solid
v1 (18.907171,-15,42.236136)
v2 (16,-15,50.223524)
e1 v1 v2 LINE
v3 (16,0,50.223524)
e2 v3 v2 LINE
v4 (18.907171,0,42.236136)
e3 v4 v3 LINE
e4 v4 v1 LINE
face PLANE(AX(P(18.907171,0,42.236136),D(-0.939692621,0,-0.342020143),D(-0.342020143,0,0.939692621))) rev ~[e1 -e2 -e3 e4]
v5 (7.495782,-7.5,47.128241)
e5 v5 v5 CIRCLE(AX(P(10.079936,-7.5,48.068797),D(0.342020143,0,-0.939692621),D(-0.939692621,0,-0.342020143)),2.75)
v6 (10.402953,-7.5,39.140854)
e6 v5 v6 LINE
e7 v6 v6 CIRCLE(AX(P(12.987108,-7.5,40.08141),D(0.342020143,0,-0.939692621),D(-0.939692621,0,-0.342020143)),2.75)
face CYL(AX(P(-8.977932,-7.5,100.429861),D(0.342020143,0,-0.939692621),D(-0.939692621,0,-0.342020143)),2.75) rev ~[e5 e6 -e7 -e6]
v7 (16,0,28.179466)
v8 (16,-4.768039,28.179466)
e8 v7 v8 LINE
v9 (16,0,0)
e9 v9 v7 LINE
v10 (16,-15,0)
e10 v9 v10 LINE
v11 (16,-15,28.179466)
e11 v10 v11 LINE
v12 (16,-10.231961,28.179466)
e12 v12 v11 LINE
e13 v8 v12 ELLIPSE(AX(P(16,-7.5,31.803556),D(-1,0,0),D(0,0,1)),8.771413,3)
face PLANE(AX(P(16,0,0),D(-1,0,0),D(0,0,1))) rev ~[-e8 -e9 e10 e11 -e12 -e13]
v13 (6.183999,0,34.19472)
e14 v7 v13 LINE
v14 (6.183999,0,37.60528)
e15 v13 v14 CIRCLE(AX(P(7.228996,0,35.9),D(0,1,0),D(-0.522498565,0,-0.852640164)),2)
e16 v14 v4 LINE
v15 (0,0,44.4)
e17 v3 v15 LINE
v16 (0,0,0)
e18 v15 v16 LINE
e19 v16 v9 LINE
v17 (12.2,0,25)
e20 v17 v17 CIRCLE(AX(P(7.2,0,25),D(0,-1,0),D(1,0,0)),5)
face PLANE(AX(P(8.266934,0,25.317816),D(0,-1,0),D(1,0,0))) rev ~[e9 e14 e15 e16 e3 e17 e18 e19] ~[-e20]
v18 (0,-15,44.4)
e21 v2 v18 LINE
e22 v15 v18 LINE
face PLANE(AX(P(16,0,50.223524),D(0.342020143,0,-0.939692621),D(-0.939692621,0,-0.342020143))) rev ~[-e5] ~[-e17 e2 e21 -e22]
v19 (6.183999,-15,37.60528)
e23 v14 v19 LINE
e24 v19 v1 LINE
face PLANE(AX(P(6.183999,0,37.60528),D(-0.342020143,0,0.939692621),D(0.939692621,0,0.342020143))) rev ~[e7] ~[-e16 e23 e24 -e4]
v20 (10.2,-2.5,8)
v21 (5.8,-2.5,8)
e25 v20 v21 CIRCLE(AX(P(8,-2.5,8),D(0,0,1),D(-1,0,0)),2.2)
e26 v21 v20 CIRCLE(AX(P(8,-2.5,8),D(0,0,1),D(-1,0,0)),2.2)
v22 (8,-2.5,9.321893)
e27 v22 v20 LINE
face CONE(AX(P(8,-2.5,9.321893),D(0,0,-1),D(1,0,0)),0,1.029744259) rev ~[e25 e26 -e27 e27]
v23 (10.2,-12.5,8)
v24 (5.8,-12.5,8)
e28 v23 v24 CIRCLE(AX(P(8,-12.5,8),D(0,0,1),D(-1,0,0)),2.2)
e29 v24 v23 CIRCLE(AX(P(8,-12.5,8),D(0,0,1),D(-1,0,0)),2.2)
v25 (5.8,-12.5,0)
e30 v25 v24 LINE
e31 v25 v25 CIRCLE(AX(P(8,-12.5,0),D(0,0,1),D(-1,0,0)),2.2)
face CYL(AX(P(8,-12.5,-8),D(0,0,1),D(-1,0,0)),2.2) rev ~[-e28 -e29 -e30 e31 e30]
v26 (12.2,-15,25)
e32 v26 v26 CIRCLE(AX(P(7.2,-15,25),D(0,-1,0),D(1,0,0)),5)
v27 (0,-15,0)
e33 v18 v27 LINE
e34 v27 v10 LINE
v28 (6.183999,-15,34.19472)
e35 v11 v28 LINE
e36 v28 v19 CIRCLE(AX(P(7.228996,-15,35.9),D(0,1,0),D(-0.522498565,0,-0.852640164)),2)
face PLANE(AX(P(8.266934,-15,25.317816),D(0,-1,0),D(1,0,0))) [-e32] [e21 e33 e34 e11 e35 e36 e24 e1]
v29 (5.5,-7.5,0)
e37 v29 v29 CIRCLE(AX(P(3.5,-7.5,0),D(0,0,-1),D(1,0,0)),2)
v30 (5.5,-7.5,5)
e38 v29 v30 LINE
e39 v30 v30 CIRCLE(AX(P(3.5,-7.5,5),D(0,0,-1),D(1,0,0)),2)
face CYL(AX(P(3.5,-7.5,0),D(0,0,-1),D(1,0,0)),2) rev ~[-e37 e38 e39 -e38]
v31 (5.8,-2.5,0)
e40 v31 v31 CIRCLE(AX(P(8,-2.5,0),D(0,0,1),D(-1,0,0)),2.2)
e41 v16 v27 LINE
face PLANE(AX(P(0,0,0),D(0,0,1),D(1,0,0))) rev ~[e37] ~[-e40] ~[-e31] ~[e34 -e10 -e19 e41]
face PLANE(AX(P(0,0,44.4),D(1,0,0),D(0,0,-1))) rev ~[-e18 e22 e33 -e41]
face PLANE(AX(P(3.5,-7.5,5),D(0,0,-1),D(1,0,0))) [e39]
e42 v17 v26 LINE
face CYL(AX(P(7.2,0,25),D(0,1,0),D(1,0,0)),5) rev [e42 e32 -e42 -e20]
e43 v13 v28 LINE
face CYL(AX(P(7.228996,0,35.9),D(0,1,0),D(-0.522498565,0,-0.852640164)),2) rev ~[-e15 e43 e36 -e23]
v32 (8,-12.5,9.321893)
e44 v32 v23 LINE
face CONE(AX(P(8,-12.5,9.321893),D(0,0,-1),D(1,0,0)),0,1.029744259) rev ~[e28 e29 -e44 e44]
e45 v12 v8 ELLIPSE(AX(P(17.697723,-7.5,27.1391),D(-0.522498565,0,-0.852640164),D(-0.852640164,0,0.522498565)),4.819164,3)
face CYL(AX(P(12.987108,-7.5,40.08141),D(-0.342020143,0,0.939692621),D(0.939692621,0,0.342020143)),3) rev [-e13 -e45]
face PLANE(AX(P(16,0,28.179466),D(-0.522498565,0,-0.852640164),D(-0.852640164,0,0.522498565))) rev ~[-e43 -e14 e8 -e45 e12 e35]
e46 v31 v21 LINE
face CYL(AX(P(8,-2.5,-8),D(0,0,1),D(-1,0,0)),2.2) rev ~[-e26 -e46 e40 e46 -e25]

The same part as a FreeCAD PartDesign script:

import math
import FreeCAD as App
import Part
import Sketcher
from FreeCAD import Vector
Q = App.Units.Quantity

doc = App.newDocument("Part")
body = doc.addObject("PartDesign::Body", "Body")

sketch1 = body.newObject("Sketcher::SketchObject", "Sketch")
sketch1.AttachmentSupport = (doc.getObject("XZ_Plane"), [""])
sketch1.MapMode = "FlatFace"
sketch1.addGeometry([
    Part.LineSegment(Vector(0, 44.4, 0), Vector(0, 0, 0)),
    Part.LineSegment(Vector(0, 0, 0), Vector(16, 0, 0)),
    Part.LineSegment(Vector(16, 0, 0), Vector(16, 28.2, 0)),
    Part.LineSegment(Vector(16, 28.2, 0), Vector(6.2, 34.2, 0)),
    Part.ArcOfCircle(Part.Circle(Vector(7.2, 35.9, 0), Vector(0, 0, 1), 2), math.radians(121), math.radians(239)),
    Part.LineSegment(Vector(6.2, 37.6, 0), Vector(18.9, 42.2, 0)),
    Part.LineSegment(Vector(18.9, 42.2, 0), Vector(16, 50.2, 0)),
    Part.LineSegment(Vector(16, 50.2, 0), Vector(0, 44.4, 0)),
    Part.Circle(Vector(7.2, 25, 0), Vector(0, 0, 1), 5),
], False)
sketch1.addConstraint([
    Sketcher.Constraint("Coincident", 0, 2, 1, 1),
    Sketcher.Constraint("Coincident", 1, 2, 2, 1),
    Sketcher.Constraint("Coincident", 2, 2, 3, 1),
    Sketcher.Constraint("Tangent", 3, 2, 4, 2),
    Sketcher.Constraint("Coincident", 4, 1, 5, 1),
    Sketcher.Constraint("Coincident", 5, 2, 6, 1),
    Sketcher.Constraint("Coincident", 6, 2, 7, 1),
    Sketcher.Constraint("Coincident", 7, 2, 0, 1),
    Sketcher.Constraint("Vertical", 0),
    Sketcher.Constraint("Horizontal", 1),
    Sketcher.Constraint("Vertical", 2),
    Sketcher.Constraint("Coincident", 0, 2, -1, 1),
    Sketcher.Constraint("Perpendicular", 5, 6),
    Sketcher.Constraint("Perpendicular", 6, 7),
    Sketcher.Constraint("Vertical", 3, 2, 4, 1),
    Sketcher.Constraint("Vertical", 2, 2, 6, 2),
    Sketcher.Constraint("Diameter", 8, 10.0),
    Sketcher.Constraint("Radius", 4, 2.0),
    Sketcher.Constraint("DistanceX", 1, 1, 1, 2, 16.0),
    Sketcher.Constraint("Angle", 5, Q("20 deg")),
    Sketcher.Constraint("DistanceY", 0, 2, 0, 1, 44.4),
    Sketcher.Constraint("DistanceY", -1, 1, 8, 3, 25.0),
    Sketcher.Constraint("Angle", 3, Q("148.5 deg")),
    Sketcher.Constraint("Distance", 6, 8.5),
    Sketcher.Constraint("DistanceY", -1, 1, 4, 3, 35.9),
    Sketcher.Constraint("DistanceX", -1, 1, 8, 3, 7.2),
])
pad1 = body.newObject("PartDesign::Pad", "Pad")
pad1.Profile = sketch1
pad1.Length = 15

sketch2 = body.newObject("Sketcher::SketchObject", "Sketch001")
sketch2.Placement = App.Placement(Vector(-14.269885, 0, 39.206187), App.Rotation(Vector(0.939692621, 0, 0.342020143), Vector(0, 1, 0), Vector(-0.342020143, 0, 0.939692621), "ZXY"))
sketch2.addGeometry(Part.Circle(Vector(25.9, -7.5, 0), Vector(0, 0, 1), 2.8), False)
sketch2.addConstraint([
    Sketcher.Constraint("Diameter", 0, 5.5),
    Sketcher.Constraint("DistanceY", 0, 3, -1, 1, 7.5),
    Sketcher.Constraint("DistanceX", -1, 1, 0, 3, 25.912539),
])
doc.recompute()
hole = body.newObject("PartDesign::Hole", "Hole")
hole.Profile = sketch2
hole.ThreadType = "None"
hole.Diameter = 5.5
hole.DepthType = "ThroughAll"

sketch3 = body.newObject("Sketcher::SketchObject", "Sketch002")
sketch3.AttachmentSupport = (doc.getObject("XY_Plane"), [""])
sketch3.MapMode = "FlatFace"
sketch3.addGeometry(Part.Circle(Vector(3.5, -7.5, 0), Vector(0, 0, 1), 2), False)
sketch3.addConstraint([
    Sketcher.Constraint("Diameter", 0, 4.0),
    Sketcher.Constraint("DistanceX", -1, 1, 0, 3, 3.5),
    Sketcher.Constraint("DistanceY", 0, 3, -1, 1, 7.5),
])
pocket1 = body.newObject("PartDesign::Pocket", "Pocket")
pocket1.Profile = sketch3
pocket1.Length = 5
pocket1.Reversed = True

sketch4 = body.newObject("Sketcher::SketchObject", "Sketch003")
sketch4.AttachmentSupport = (doc.getObject("XY_Plane"), [""])
sketch4.MapMode = "FlatFace"
sketch4.addGeometry([
    Part.Circle(Vector(8, -12.5, 0), Vector(0, 0, 1), 2.2),
    Part.Circle(Vector(8, -2.5, 0), Vector(0, 0, 1), 2.2),
], False)
sketch4.addConstraint([
    Sketcher.Constraint("Equal", 0, 1),
    Sketcher.Constraint("Vertical", 0, 3, 1, 3),
    Sketcher.Constraint("Diameter", 0, 4.4),
    Sketcher.Constraint("DistanceX", -1, 1, 0, 3, 8.0),
    Sketcher.Constraint("DistanceY", 0, 3, 1, 3, 10.0),
    Sketcher.Constraint("DistanceY", 0, 3, -1, 1, 12.5),
])
doc.recompute()
hole2 = body.newObject("PartDesign::Hole", "Hole001")
hole2.Profile = sketch4
hole2.ThreadType = "None"
hole2.Diameter = 4.4
hole2.DepthType = "Dimension"
hole2.Depth = 8
hole2.DrillPoint = "Angled"
hole2.DrillPointAngle = 118
hole2.Reversed = True

sketch5 = body.newObject("Sketcher::SketchObject", "Sketch004")
sketch5.Placement = App.Placement(Vector(-11.362714, 0, 31.218799), App.Rotation(Vector(0.939692621, 0, 0.342020143), Vector(0, -1, 0), Vector(0.342020143, 0, -0.939692621), "ZXY"))
sketch5.addGeometry(Part.Circle(Vector(25.9, 7.5, 0), Vector(0, 0, 1), 3), False)
sketch5.addConstraint([
    Sketcher.Constraint("Diameter", 0, 6.0),
    Sketcher.Constraint("DistanceY", -1, 1, 0, 3, 7.5),
    Sketcher.Constraint("DistanceX", -1, 1, 0, 3, 25.912539),
])
pocket2 = body.newObject("PartDesign::Pocket", "Pocket001")
pocket2.Profile = sketch5
pocket2.Length = 25
pocket2.Reversed = True

doc.recompute()
